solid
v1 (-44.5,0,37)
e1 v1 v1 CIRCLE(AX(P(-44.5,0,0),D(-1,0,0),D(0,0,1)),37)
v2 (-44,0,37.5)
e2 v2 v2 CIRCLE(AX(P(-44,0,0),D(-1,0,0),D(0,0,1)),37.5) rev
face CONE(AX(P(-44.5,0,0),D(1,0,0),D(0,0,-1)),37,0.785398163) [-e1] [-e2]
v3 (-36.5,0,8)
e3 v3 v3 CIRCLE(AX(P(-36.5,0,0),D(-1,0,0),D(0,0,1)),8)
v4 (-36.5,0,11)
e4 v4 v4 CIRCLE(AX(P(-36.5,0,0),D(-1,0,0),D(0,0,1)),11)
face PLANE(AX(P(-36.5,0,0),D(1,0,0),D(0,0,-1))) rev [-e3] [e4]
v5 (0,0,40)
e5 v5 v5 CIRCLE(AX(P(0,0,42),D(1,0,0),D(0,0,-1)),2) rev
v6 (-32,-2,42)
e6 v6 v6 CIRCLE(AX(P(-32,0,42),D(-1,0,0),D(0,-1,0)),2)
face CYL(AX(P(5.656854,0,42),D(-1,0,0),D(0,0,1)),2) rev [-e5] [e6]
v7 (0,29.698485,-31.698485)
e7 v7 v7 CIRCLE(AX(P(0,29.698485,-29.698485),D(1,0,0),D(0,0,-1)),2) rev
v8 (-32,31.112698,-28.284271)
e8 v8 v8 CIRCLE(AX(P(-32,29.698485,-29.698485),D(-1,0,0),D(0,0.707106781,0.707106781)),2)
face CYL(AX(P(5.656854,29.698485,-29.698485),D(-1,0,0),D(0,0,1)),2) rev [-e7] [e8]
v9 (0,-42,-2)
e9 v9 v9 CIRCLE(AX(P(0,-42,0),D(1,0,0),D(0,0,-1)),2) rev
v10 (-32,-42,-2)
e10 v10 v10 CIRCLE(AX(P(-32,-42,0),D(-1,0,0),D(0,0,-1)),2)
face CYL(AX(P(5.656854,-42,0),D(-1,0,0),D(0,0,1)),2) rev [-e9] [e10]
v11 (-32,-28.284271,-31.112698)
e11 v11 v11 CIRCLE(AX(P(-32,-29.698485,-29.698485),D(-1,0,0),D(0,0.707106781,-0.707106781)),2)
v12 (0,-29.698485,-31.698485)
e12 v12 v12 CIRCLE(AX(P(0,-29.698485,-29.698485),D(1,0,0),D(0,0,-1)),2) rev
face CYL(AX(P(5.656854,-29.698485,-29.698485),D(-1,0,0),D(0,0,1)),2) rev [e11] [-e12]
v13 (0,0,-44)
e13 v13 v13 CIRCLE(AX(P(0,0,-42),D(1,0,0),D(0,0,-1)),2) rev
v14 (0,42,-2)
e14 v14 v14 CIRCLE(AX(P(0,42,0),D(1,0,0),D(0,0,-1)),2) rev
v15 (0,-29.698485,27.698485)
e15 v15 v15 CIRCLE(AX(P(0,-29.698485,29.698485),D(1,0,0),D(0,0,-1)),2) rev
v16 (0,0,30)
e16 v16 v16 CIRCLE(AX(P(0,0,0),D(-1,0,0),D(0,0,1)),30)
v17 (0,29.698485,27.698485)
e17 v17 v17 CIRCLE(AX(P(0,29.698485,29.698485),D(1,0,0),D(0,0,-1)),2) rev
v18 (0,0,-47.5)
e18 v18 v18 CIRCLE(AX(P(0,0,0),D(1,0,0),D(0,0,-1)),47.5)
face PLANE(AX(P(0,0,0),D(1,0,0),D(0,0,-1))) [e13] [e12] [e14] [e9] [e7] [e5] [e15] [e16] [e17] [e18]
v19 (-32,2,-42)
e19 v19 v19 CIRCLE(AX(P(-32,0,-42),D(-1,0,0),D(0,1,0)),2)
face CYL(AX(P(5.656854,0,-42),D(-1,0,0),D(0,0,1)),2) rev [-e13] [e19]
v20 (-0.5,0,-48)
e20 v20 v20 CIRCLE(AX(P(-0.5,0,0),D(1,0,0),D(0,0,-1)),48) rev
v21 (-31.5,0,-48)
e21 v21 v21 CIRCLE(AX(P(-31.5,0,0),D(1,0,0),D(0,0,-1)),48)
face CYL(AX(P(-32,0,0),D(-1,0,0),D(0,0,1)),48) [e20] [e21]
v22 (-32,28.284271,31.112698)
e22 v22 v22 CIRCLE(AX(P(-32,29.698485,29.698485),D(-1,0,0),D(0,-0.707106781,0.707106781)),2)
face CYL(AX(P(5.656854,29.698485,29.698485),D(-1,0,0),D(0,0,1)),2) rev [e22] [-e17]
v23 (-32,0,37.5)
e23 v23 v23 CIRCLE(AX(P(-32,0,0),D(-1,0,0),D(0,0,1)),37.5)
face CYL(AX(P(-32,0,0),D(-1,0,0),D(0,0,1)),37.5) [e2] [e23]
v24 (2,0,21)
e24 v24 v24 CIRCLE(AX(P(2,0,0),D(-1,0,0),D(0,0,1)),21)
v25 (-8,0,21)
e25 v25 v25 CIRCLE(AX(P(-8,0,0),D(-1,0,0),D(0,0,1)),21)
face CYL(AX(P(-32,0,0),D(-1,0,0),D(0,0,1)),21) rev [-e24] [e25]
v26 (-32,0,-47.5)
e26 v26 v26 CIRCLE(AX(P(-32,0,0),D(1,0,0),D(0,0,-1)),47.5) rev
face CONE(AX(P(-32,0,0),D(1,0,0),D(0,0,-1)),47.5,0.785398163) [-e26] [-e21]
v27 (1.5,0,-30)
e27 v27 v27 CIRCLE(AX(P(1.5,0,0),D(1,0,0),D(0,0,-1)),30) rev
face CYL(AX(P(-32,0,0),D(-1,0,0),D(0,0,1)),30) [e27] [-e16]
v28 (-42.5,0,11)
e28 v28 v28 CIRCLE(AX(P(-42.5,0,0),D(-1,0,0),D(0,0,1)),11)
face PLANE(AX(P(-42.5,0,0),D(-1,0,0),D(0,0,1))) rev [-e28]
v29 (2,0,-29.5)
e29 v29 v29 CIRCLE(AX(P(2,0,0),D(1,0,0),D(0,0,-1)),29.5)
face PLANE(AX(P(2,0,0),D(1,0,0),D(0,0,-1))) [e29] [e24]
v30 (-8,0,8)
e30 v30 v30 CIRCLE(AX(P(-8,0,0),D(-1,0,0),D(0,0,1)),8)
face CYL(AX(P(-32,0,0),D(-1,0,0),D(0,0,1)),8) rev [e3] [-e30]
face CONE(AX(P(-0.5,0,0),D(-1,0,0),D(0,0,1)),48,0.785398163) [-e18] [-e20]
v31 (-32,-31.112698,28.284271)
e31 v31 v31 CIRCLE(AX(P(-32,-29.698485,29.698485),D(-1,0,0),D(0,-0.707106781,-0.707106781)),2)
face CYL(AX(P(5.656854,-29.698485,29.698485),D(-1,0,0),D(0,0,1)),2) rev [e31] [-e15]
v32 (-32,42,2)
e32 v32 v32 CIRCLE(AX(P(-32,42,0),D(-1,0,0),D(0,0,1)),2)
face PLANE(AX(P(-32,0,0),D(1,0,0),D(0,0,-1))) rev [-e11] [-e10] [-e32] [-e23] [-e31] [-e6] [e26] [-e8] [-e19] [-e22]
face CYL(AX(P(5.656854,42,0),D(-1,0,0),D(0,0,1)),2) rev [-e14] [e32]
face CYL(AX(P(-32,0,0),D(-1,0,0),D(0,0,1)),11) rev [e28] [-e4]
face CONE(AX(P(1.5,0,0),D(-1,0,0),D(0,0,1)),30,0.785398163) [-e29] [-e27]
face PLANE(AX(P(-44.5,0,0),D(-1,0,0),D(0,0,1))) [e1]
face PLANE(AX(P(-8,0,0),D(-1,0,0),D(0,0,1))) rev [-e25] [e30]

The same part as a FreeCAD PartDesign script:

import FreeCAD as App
import Part
import Sketcher


def edges_at(feature, points):
    """Names of the edges that pass closest to the given points."""
    edges = feature.Shape.Edges
    near = lambda p: min(range(len(edges)), key=lambda i: edges[i].distToShape(Part.Vertex(*p))[0])
    return sorted({f"Edge{near(p) + 1}" for p in points})

doc = App.newDocument("Part")
body = doc.addObject("PartDesign::Body", "Body")

# Sketch on XZ plane
sketch1 = body.newObject("Sketcher::SketchObject", "Sketch")
sketch1.AttachmentSupport = (doc.getObject("XZ_Plane"), [""])
sketch1.MapMode = "FlatFace"
sketch1.addGeometry(Part.LineSegment(App.Vector(0, -30, 0), App.Vector(0, -48, 0)), False)
sketch1.addGeometry(Part.LineSegment(App.Vector(0, -48, 0), App.Vector(-32, -48, 0)), False)
sketch1.addGeometry(Part.LineSegment(App.Vector(-32, -48, 0), App.Vector(-32, -37.5, 0)), False)
sketch1.addGeometry(Part.LineSegment(App.Vector(-32, -37.5, 0), App.Vector(-44.5, -37.5, 0)), False)
sketch1.addGeometry(Part.LineSegment(App.Vector(-44.5, -37.5, 0), App.Vector(-44.5, 0, 0)), False)
sketch1.addGeometry(Part.LineSegment(App.Vector(-44.5, 0, 0), App.Vector(-42.5, 0, 0)), False)
sketch1.addGeometry(Part.LineSegment(App.Vector(-42.5, 0, 0), App.Vector(-42.5, -11, 0)), False)
sketch1.addGeometry(Part.LineSegment(App.Vector(-42.5, -11, 0), App.Vector(-36.5, -11, 0)), False)
sketch1.addGeometry(Part.LineSegment(App.Vector(-36.5, -11, 0), App.Vector(-36.5, -8, 0)), False)
sketch1.addGeometry(Part.LineSegment(App.Vector(-36.5, -8, 0), App.Vector(-8, -8, 0)), False)
sketch1.addGeometry(Part.LineSegment(App.Vector(-8, -8, 0), App.Vector(-8, -21, 0)), False)
sketch1.addGeometry(Part.LineSegment(App.Vector(-8, -21, 0), App.Vector(2, -21, 0)), False)
sketch1.addGeometry(Part.LineSegment(App.Vector(2, -21, 0), App.Vector(2, -30, 0)), False)
sketch1.addGeometry(Part.LineSegment(App.Vector(2, -30, 0), App.Vector(0, -30, 0)), False)
sketch1.addConstraint(Sketcher.Constraint("Coincident", 0, 2, 1, 1))
sketch1.addConstraint(Sketcher.Constraint("Coincident", 1, 2, 2, 1))
sketch1.addConstraint(Sketcher.Constraint("Coincident", 2, 2, 3, 1))
sketch1.addConstraint(Sketcher.Constraint("Coincident", 3, 2, 4, 1))
sketch1.addConstraint(Sketcher.Constraint("Coincident", 4, 2, 5, 1))
sketch1.addConstraint(Sketcher.Constraint("Coincident", 5, 2, 6, 1))
sketch1.addConstraint(Sketcher.Constraint("Coincident", 6, 2, 7, 1))
sketch1.addConstraint(Sketcher.Constraint("Coincident", 7, 2, 8, 1))
sketch1.addConstraint(Sketcher.Constraint("Coincident", 8, 2, 9, 1))
sketch1.addConstraint(Sketcher.Constraint("Coincident", 9, 2, 10, 1))
sketch1.addConstraint(Sketcher.Constraint("Coincident", 10, 2, 11, 1))
sketch1.addConstraint(Sketcher.Constraint("Coincident", 11, 2, 12, 1))
sketch1.addConstraint(Sketcher.Constraint("Coincident", 12, 2, 13, 1))
sketch1.addConstraint(Sketcher.Constraint("Coincident", 13, 2, 0, 1))
sketch1.addConstraint(Sketcher.Constraint("Vertical", 0))
sketch1.addConstraint(Sketcher.Constraint("Horizontal", 1))
sketch1.addConstraint(Sketcher.Constraint("Vertical", 2))
sketch1.addConstraint(Sketcher.Constraint("Horizontal", 3))
sketch1.addConstraint(Sketcher.Constraint("Vertical", 4))
sketch1.addConstraint(Sketcher.Constraint("Horizontal", 5))
sketch1.addConstraint(Sketcher.Constraint("Vertical", 6))
sketch1.addConstraint(Sketcher.Constraint("Horizontal", 7))
sketch1.addConstraint(Sketcher.Constraint("Vertical", 8))
sketch1.addConstraint(Sketcher.Constraint("Horizontal", 9))
sketch1.addConstraint(Sketcher.Constraint("Vertical", 10))
sketch1.addConstraint(Sketcher.Constraint("Horizontal", 11))
sketch1.addConstraint(Sketcher.Constraint("Vertical", 12))
sketch1.addConstraint(Sketcher.Constraint("Horizontal", 13))
sketch1.addConstraint(Sketcher.Constraint("PointOnObject", 0, 2, -2))
sketch1.addConstraint(Sketcher.Constraint("PointOnObject", 4, 2, -1))
sketch1.addConstraint(Sketcher.Constraint("Equal", 5, 13))
sketch1.addConstraint(Sketcher.Constraint("DistanceX", 1, 2, 1, 1, 32.0))
sketch1.addConstraint(Sketcher.Constraint("DistanceX", 5, 1, 5, 2, 2.0))
sketch1.addConstraint(Sketcher.Constraint("DistanceX", 7, 1, 7, 2, 6.0))
sketch1.addConstraint(Sketcher.Constraint("DistanceX", 11, 1, 11, 2, 10.0))
sketch1.addConstraint(Sketcher.Constraint("DistanceY", 0, 2, 0, 1, 18.0))
sketch1.addConstraint(Sketcher.Constraint("DistanceY", 6, 2, 6, 1, 11.0))
sketch1.addConstraint(Sketcher.Constraint("DistanceY", 8, 1, 8, 2, 3.0))
sketch1.addConstraint(Sketcher.Constraint("DistanceY", 10, 2, 10, 1, 13.0))
sketch1.addConstraint(Sketcher.Constraint("DistanceY", 12, 2, 12, 1, 9.0))
sketch1.addConstraint(Sketcher.Constraint("DistanceX", 3, 2, 3, 1, 12.5))
sketch1.addConstraint(Sketcher.Constraint("DistanceY", 2, 1, 2, 2, 10.5))
revolution = body.newObject("PartDesign::Revolution", "Revolution")
revolution.Profile = sketch1
revolution.ReferenceAxis = (sketch1, ["H_Axis"])
revolution.Angle = 360

# Sketch on YZ plane
sketch2 = body.newObject("Sketcher::SketchObject", "Sketch001")
sketch2.AttachmentSupport = (doc.getObject("YZ_Plane"), [""])
sketch2.MapMode = "FlatFace"
sketch2.AttachmentOffset = App.Placement(App.Vector(0, 0, -32), App.Rotation())
sketch2.addGeometry(Part.Circle(App.Vector(42, 0, 0), App.Vector(0, 0, 1), 2), False)
sketch2.addConstraint(Sketcher.Constraint("PointOnObject", 0, 3, -1))
sketch2.addConstraint(Sketcher.Constraint("Diameter", 0, 4.0))
sketch2.addConstraint(Sketcher.Constraint("DistanceX", -1, 1, 0, 3, 42.0))
pocket1 = body.newObject("PartDesign::Pocket", "Pocket")
pocket1.Profile = sketch2
pocket1.Length = 32
pocket1.Reversed = True
doc.recompute()

polarpattern = body.newObject("PartDesign::PolarPattern", "PolarPattern")
polarpattern.Originals = [pocket1]
polarpattern.Axis = (doc.getObject("X_Axis"), [""])
polarpattern.Angle = 360
polarpattern.Occurrences = 8
body.Tip = polarpattern
doc.recompute()

chamfer = body.newObject("PartDesign::Chamfer", "Chamfer")
chamfer.Base = (polarpattern, edges_at(polarpattern, [(-44.5, 0, -37.5), (-32, 0, -48), (0, 0, -48)]))
chamfer.Size = 0.5
doc.recompute()

chamfer2 = body.newObject("PartDesign::Chamfer", "Chamfer001")
chamfer2.Base = (chamfer, edges_at(chamfer, [(2, 0, -30)]))
chamfer2.Size = 0.5

doc.recompute()
